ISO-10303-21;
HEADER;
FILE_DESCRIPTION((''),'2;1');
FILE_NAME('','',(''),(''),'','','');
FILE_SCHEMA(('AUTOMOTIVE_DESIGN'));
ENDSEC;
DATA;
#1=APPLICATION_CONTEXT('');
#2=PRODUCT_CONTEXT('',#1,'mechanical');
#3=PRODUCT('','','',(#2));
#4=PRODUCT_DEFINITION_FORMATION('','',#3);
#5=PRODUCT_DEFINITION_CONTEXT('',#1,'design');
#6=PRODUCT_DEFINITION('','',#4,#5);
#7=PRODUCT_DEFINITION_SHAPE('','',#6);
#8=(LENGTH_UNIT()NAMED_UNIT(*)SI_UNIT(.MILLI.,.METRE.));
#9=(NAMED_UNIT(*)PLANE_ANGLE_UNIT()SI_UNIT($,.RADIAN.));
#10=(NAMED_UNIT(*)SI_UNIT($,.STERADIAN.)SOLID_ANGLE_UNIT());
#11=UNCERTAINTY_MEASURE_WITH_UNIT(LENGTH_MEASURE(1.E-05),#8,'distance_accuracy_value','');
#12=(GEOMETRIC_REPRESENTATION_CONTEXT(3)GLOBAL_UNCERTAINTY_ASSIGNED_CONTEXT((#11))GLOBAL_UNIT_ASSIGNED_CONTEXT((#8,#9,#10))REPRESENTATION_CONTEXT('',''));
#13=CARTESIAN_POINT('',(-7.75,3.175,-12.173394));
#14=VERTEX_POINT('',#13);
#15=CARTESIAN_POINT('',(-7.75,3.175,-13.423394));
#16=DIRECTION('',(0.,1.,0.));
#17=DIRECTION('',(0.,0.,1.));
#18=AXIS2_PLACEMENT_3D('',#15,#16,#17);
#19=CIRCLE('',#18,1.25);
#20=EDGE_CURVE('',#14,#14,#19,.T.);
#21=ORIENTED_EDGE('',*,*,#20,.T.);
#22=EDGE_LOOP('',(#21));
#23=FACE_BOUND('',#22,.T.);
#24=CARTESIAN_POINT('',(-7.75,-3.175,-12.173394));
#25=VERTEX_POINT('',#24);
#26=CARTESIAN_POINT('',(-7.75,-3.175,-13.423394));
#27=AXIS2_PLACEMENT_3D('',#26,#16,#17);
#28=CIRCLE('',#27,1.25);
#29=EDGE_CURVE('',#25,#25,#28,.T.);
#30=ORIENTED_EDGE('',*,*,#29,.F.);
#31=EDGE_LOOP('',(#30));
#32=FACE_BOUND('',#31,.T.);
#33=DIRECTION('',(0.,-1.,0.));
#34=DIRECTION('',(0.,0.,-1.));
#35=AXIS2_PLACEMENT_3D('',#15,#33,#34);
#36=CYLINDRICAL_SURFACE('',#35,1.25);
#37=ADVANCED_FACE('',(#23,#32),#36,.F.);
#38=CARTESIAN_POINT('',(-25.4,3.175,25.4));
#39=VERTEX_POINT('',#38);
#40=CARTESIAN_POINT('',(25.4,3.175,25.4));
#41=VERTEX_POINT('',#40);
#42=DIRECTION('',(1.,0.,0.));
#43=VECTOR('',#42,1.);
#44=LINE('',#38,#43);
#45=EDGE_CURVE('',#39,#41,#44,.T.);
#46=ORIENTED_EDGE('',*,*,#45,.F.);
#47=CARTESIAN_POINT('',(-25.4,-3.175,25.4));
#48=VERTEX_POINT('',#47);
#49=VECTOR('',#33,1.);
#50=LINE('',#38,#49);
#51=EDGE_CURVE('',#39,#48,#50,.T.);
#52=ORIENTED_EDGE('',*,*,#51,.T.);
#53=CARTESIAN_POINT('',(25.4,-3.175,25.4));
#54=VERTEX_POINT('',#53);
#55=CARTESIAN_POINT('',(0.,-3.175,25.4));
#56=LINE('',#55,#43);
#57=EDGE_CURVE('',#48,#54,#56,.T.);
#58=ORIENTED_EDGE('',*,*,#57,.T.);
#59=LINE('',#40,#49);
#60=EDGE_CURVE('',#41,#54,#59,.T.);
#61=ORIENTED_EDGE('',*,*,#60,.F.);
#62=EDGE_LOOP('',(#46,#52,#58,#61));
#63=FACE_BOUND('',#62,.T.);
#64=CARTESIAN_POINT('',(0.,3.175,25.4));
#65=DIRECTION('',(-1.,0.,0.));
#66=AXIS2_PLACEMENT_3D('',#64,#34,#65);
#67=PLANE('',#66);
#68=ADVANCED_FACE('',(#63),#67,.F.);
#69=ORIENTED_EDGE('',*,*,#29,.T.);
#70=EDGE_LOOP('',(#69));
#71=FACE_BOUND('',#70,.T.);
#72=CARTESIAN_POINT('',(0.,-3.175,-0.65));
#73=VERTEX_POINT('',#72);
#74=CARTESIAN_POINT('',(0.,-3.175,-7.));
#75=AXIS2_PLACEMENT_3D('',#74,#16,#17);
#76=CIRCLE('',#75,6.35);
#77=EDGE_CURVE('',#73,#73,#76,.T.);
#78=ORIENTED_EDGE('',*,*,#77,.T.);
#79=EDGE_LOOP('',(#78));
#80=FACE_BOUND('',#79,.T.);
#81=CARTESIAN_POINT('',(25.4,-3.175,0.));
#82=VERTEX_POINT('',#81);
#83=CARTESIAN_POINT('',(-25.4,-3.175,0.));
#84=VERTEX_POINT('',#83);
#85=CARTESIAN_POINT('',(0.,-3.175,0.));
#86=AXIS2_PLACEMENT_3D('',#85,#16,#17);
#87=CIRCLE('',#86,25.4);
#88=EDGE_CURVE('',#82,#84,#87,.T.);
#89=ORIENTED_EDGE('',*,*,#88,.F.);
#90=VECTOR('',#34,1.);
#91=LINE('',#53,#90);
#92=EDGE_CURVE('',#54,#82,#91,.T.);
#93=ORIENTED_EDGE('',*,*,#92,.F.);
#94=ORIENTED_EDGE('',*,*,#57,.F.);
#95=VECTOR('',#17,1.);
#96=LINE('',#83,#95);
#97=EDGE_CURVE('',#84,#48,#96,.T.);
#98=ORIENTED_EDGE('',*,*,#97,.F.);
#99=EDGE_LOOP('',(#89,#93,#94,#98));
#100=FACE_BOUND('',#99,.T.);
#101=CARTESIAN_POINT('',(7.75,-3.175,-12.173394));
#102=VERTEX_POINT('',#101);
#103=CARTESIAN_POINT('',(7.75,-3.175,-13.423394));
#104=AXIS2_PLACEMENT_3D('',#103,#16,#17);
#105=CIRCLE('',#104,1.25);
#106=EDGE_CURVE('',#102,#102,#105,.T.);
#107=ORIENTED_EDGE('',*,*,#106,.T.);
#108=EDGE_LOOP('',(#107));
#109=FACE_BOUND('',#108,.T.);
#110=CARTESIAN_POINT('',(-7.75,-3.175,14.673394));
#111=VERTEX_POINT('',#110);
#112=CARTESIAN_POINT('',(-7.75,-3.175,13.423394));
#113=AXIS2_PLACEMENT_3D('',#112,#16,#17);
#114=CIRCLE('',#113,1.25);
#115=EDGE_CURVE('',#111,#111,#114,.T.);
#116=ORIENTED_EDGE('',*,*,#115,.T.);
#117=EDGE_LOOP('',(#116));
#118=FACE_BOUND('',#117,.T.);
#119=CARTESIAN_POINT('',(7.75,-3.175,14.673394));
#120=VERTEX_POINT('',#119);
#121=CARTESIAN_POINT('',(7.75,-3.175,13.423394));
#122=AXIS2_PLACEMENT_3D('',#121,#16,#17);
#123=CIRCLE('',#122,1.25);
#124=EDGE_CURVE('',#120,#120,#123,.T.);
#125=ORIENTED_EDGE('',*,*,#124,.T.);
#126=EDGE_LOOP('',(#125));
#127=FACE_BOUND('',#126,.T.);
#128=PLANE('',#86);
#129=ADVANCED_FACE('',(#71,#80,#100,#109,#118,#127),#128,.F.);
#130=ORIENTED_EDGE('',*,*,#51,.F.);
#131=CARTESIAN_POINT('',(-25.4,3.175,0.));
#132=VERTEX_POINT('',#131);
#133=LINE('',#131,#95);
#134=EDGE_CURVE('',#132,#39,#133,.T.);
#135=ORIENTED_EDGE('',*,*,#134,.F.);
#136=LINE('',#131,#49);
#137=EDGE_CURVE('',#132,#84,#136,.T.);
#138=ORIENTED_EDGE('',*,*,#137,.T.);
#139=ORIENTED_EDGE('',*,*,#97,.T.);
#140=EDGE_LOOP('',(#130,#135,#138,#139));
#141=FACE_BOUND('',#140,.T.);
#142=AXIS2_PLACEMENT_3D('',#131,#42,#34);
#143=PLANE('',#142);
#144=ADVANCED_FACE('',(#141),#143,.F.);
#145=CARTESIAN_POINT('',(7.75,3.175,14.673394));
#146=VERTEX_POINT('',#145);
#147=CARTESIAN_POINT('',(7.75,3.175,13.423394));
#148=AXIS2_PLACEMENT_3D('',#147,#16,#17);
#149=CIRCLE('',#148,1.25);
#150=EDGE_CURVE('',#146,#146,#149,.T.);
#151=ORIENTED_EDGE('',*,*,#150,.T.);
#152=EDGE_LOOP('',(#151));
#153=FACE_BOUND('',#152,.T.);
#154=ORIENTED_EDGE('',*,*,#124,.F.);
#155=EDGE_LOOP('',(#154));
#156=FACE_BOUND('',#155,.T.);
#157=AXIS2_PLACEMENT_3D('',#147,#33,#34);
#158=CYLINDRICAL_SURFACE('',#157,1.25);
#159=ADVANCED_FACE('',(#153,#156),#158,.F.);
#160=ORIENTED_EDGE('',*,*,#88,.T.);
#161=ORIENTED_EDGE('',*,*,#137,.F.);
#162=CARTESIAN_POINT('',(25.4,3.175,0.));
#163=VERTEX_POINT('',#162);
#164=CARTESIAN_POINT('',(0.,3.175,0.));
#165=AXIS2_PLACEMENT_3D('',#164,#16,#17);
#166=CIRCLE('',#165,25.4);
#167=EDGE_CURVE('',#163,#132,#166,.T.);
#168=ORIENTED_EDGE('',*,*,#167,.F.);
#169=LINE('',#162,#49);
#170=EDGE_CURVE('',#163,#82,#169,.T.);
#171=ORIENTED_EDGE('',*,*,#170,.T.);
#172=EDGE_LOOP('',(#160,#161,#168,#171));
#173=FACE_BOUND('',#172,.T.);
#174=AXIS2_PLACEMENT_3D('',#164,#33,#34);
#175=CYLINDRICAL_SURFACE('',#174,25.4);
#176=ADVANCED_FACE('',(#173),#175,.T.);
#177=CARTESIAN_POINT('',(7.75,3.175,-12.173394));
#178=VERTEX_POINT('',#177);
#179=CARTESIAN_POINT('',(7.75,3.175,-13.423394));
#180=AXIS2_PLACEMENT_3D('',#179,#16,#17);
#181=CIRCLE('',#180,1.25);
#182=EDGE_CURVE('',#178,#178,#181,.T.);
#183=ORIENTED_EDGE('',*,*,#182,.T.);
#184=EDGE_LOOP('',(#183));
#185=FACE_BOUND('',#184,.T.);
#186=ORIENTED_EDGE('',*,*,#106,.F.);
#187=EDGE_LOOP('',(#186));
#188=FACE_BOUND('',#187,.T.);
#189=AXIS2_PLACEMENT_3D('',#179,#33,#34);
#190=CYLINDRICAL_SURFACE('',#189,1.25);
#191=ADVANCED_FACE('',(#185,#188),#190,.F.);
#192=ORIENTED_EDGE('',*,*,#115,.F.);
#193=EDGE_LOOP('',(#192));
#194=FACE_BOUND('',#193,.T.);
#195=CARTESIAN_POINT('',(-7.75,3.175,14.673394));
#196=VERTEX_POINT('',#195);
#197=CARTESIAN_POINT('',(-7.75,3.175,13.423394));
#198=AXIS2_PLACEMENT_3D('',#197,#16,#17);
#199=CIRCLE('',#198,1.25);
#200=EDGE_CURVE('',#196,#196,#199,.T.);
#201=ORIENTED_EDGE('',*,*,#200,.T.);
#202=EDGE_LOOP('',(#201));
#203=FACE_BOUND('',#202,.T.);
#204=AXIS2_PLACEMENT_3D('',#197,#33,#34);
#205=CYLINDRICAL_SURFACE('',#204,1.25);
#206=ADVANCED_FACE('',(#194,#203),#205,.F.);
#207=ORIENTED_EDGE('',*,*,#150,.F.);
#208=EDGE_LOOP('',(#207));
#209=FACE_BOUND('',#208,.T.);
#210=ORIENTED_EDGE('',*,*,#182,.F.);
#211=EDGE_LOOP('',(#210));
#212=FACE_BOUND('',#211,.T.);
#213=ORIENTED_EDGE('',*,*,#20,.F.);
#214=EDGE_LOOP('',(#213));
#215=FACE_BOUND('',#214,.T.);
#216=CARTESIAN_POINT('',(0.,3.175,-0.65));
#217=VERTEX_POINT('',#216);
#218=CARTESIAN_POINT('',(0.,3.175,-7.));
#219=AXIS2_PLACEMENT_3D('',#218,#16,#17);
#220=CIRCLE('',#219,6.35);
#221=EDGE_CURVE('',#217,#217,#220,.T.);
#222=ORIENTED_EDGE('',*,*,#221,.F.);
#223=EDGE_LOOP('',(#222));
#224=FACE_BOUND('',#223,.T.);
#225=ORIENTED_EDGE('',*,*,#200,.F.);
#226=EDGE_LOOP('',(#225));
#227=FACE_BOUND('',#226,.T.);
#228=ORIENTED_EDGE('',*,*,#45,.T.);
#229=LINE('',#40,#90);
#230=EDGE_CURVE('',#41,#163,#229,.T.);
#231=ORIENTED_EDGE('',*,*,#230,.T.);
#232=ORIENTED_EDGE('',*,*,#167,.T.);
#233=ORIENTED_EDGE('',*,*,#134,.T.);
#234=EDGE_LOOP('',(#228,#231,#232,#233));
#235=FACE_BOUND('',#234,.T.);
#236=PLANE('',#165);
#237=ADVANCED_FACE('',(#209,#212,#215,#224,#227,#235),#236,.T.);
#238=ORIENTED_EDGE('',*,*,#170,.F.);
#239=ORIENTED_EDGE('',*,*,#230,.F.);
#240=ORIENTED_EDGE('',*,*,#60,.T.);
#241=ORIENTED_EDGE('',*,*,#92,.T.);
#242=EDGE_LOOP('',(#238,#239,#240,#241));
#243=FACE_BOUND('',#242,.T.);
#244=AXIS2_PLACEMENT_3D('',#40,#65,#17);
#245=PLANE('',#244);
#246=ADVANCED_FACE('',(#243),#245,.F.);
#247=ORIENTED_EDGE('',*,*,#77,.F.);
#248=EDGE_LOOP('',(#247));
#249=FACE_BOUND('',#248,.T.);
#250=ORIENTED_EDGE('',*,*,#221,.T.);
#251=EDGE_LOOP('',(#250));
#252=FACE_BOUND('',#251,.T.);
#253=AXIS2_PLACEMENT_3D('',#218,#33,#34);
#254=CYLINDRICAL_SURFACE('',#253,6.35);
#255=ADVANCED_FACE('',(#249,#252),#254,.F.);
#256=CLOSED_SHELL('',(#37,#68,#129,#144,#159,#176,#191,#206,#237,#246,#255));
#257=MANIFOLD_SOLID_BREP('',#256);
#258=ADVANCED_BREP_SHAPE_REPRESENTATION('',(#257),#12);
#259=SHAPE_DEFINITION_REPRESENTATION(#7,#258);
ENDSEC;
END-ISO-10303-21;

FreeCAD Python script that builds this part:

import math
import FreeCAD as App
import Part
import Sketcher
Q = App.Units.Quantity

doc = App.newDocument("Part")
body = doc.addObject("PartDesign::Body", "Body")

sketch1 = doc.addObject("Sketcher::SketchObject", "Sketch")
body.addObject(sketch1)
sketch1.AttachmentSupport = (doc.XZ_Plane, [""])
sketch1.MapMode = "FlatFace"
sketch1.addGeometry(Part.LineSegment(App.Vector(-25.4, 0, 0), App.Vector(-25.4, 25.4, 0)), False)
sketch1.addGeometry(Part.LineSegment(App.Vector(-25.4, 25.4, 0), App.Vector(25.4, 25.4, 0)), False)
sketch1.addGeometry(Part.LineSegment(App.Vector(25.4, 25.4, 0), App.Vector(25.4, 0, 0)), False)
sketch1.addGeometry(Part.ArcOfCircle(Part.Circle(App.Vector(0, 0, 0), App.Vector(0, 0, 1), 25.4), math.radians(180), math.radians(360)), False)
sketch1.addGeometry(Part.Circle(App.Vector(-7.8, 13.4, 0), App.Vector(0, 0, 1), 1.2), False)
sketch1.addGeometry(Part.Circle(App.Vector(7.8, 13.4, 0), App.Vector(0, 0, 1), 1.2), False)
sketch1.addGeometry(Part.Circle(App.Vector(-7.8, -13.4, 0), App.Vector(0, 0, 1), 1.2), False)
sketch1.addGeometry(Part.Circle(App.Vector(0, -7, 0), App.Vector(0, 0, 1), 6.3), False)
sketch1.addGeometry(Part.Circle(App.Vector(7.8, -13.4, 0), App.Vector(0, 0, 1), 1.2), False)
sketch1.addConstraint(Sketcher.Constraint("Coincident", 0, 2, 1, 1))
sketch1.addConstraint(Sketcher.Constraint("Coincident", 1, 2, 2, 1))
sketch1.addConstraint(Sketcher.Constraint("Tangent", 2, 2, 3, 2))
sketch1.addConstraint(Sketcher.Constraint("Tangent", 3, 1, 0, 1))
sketch1.addConstraint(Sketcher.Constraint("Vertical", 0))
sketch1.addConstraint(Sketcher.Constraint("Horizontal", 1))
sketch1.addConstraint(Sketcher.Constraint("Vertical", 2))
sketch1.addConstraint(Sketcher.Constraint("Coincident", 3, 3, -1, 1))
sketch1.addConstraint(Sketcher.Constraint("Equal", 4, 5))
sketch1.addConstraint(Sketcher.Constraint("Equal", 5, 6))
sketch1.addConstraint(Sketcher.Constraint("Equal", 6, 8))
sketch1.addConstraint(Sketcher.Constraint("Symmetric", 5, 3, 6, 3, -1, 1))
sketch1.addConstraint(Sketcher.Constraint("Symmetric", 4, 3, 8, 3, -1, 1))
sketch1.addConstraint(Sketcher.Constraint("Symmetric", 4, 3, 5, 3, -2))
sketch1.addConstraint(Sketcher.Constraint("PointOnObject", 7, 3, -2))
sketch1.addConstraint(Sketcher.Constraint("Radius", 3, Q("1 in")))
sketch1.addConstraint(Sketcher.Constraint("Diameter", 7, Q("0.5 in")))
sketch1.addConstraint(Sketcher.Constraint("DistanceY", 0, 1, 0, 2, Q("1 in")))
sketch1.addConstraint(Sketcher.Constraint("Diameter", 4, Q("2.5 mm")))
sketch1.addConstraint(Sketcher.Constraint("DistanceX", 4, 3, -1, 1, Q("7.75 mm")))
sketch1.addConstraint(Sketcher.Constraint("DistanceY", 7, 3, -1, 1, Q("7 mm")))
sketch1.addConstraint(Sketcher.Constraint("DistanceY", -1, 1, 4, 3, Q("13.423394 mm")))
pad1 = doc.addObject("PartDesign::Pad", "Pad")
body.addObject(pad1)
pad1.Profile = sketch1
pad1.Length = Q("0.25 in")
pad1.Midplane = True

doc.recompute()
